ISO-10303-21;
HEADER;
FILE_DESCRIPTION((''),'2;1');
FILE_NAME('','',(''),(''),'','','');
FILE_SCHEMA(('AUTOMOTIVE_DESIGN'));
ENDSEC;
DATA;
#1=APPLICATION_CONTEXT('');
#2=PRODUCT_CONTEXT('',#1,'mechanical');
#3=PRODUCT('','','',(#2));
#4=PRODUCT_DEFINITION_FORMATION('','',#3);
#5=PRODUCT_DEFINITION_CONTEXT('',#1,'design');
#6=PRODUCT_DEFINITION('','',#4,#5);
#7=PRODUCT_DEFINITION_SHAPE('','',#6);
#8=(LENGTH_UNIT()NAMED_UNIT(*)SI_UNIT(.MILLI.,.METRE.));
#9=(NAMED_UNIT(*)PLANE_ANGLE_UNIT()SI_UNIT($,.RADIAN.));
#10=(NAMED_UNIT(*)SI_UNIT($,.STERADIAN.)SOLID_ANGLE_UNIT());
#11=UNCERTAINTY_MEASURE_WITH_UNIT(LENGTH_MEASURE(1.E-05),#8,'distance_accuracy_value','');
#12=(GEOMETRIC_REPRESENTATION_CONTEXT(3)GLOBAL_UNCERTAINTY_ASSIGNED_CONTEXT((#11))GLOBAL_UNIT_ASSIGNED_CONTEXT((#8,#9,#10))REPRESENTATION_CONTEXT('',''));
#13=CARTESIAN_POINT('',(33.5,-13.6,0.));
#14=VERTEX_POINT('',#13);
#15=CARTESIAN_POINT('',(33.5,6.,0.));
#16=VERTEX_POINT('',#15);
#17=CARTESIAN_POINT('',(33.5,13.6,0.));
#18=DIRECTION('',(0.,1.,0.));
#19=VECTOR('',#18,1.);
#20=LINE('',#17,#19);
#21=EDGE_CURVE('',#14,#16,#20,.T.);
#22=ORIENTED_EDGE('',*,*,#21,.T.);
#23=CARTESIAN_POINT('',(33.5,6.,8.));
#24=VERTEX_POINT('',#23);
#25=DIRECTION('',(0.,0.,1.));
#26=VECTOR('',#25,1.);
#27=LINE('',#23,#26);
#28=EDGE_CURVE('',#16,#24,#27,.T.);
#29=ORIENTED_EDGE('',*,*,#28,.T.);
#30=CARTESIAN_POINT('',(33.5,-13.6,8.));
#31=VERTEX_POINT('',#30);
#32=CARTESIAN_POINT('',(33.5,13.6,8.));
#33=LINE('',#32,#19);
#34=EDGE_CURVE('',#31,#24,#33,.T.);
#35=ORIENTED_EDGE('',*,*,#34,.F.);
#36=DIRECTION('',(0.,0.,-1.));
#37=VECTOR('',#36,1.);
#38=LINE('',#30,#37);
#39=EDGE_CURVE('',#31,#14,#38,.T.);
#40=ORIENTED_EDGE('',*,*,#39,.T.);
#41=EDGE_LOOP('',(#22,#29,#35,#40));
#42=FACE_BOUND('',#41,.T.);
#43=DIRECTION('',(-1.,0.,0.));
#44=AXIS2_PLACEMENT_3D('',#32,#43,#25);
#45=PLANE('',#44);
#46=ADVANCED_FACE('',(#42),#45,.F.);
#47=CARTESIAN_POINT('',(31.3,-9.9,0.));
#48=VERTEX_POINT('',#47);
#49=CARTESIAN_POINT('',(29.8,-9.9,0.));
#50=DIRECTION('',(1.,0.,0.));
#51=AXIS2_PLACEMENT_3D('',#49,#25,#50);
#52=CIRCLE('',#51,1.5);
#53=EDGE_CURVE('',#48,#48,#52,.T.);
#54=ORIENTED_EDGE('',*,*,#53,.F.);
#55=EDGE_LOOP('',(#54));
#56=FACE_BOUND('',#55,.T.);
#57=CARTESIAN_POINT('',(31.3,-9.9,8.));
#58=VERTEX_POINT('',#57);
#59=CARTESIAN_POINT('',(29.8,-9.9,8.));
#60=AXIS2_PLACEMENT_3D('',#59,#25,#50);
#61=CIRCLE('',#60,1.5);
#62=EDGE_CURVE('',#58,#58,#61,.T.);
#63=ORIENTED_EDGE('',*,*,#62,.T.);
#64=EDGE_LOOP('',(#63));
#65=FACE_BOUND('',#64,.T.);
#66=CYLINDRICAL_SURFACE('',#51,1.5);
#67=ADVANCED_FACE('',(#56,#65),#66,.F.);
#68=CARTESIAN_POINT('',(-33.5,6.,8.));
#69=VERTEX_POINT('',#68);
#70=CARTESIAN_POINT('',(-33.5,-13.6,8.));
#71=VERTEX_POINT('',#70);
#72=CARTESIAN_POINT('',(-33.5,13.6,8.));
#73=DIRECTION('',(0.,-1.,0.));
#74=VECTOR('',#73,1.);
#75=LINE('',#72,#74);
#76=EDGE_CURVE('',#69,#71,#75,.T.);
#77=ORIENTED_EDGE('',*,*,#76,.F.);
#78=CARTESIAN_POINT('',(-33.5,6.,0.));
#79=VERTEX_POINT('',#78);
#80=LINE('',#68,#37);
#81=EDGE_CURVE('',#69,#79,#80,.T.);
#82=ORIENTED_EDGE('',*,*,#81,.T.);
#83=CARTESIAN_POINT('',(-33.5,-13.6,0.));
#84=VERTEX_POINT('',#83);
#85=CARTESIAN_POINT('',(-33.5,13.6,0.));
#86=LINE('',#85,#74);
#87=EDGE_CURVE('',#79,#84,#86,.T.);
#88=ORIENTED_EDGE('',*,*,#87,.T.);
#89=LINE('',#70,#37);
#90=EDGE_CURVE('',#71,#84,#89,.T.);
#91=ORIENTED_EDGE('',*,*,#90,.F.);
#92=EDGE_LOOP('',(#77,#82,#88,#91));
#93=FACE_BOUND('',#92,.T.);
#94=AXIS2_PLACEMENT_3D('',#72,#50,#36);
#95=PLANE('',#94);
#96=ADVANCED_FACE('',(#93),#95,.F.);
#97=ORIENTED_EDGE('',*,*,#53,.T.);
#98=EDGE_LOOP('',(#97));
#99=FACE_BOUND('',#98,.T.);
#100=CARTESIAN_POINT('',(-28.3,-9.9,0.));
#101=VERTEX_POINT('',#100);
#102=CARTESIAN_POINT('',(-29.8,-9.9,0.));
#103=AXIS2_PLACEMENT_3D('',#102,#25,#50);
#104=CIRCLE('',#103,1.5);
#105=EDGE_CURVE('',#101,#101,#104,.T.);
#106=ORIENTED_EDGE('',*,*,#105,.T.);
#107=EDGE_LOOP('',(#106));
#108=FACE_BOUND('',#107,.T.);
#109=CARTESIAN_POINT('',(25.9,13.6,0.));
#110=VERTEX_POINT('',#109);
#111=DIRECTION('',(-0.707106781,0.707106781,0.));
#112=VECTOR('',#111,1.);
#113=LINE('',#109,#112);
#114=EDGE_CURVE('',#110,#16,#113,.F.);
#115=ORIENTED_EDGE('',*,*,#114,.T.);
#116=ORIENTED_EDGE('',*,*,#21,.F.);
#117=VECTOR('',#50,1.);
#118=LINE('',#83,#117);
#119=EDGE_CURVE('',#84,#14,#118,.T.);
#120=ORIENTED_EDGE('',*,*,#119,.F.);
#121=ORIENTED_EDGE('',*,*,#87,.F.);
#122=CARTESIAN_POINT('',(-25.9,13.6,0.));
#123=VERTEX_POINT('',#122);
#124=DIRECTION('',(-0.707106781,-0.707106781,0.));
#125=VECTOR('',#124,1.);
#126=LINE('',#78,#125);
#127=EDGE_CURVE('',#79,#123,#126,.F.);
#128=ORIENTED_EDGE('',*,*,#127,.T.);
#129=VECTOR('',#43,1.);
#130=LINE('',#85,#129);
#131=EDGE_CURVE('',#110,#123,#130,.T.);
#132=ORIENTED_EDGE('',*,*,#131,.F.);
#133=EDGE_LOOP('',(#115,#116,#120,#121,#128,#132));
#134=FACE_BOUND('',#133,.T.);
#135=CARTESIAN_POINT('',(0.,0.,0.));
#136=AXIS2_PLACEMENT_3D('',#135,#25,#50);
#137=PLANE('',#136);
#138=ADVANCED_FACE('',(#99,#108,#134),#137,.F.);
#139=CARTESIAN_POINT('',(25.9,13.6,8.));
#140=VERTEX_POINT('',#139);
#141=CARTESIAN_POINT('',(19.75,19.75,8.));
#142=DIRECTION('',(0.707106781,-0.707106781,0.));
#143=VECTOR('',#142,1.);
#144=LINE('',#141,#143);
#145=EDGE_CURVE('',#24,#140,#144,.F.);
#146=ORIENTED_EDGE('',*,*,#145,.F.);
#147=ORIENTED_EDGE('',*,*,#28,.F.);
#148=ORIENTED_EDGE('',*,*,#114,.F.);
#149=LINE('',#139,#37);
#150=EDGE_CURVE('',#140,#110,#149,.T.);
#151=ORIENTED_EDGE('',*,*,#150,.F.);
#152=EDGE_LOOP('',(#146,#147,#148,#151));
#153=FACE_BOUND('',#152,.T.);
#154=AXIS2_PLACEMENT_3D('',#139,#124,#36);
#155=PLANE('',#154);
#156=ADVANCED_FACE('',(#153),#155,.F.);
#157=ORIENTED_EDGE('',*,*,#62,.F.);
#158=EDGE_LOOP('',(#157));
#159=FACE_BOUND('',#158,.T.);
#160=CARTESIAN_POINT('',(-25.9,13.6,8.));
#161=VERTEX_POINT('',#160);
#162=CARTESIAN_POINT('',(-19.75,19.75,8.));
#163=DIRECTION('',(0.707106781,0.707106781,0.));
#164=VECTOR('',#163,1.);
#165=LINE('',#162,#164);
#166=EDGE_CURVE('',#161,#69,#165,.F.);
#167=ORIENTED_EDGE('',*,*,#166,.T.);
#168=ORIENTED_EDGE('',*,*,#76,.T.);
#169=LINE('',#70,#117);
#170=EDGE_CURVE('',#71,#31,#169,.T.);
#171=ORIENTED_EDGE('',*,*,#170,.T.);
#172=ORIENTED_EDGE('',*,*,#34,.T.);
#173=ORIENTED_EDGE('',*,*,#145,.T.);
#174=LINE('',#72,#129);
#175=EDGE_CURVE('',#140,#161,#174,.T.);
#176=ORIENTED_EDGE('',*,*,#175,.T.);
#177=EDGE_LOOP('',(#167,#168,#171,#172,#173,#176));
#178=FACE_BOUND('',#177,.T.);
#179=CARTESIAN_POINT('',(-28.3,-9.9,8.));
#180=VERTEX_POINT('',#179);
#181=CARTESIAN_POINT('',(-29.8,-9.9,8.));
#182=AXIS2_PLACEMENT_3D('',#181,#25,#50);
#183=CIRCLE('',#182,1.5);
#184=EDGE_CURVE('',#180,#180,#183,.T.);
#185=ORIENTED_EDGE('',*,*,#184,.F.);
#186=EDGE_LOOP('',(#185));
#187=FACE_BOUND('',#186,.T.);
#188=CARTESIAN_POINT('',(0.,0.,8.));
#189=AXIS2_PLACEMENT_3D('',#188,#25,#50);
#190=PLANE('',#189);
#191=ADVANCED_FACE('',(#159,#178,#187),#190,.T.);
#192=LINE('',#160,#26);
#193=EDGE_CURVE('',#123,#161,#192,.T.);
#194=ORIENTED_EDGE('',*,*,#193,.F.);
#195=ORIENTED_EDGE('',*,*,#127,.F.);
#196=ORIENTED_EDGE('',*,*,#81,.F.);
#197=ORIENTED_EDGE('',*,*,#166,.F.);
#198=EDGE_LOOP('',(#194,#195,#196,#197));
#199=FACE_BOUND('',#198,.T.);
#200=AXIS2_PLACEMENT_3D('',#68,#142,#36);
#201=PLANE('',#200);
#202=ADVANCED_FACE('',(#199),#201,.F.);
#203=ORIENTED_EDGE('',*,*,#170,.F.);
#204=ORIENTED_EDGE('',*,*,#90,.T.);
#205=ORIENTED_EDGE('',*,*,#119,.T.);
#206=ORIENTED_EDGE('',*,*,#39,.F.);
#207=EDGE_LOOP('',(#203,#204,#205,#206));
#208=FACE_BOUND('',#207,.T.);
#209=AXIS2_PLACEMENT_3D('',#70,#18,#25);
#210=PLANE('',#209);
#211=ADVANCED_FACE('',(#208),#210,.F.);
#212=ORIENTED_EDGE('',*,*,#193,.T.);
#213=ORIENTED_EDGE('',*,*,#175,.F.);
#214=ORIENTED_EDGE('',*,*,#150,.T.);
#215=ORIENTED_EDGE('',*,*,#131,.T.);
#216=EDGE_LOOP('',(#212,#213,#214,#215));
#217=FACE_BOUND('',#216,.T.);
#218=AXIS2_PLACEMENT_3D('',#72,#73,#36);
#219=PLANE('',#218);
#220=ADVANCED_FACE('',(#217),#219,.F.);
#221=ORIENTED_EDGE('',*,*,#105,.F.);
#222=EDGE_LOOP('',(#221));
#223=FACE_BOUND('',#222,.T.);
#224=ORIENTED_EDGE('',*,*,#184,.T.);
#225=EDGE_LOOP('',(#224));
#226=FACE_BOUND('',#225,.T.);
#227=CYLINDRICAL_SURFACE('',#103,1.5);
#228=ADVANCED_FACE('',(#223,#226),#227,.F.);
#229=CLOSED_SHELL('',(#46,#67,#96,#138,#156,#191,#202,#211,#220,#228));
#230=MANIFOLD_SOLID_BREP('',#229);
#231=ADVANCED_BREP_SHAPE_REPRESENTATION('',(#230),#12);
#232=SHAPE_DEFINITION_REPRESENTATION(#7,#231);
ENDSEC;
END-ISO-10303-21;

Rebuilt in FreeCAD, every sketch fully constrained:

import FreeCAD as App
import Part
import Sketcher
from FreeCAD import Vector
Q = App.Units.Quantity


def edges_at(feature, points):
    """Names of the edges that pass closest to the given points."""
    edges = feature.Shape.Edges
    near = lambda p: min(range(len(edges)), key=lambda i: edges[i].distToShape(Part.Vertex(*p))[0])
    return sorted({f"Edge{near(p) + 1}" for p in points})


def add_polygon(sketch, points):
    """Adds a closed chain of lines whose ends are joined by coincident constraints."""
    first, n = sketch.GeometryCount, len(points)
    for a, b in zip(points, points[1:] + points[:1]):
        sketch.addGeometry(Part.LineSegment(App.Vector(*a, 0), App.Vector(*b, 0)), False)
    for i in range(n):
        sketch.addConstraint(Sketcher.Constraint("Coincident", first + i, 2, first + (i + 1) % n, 1))

doc = App.newDocument("Part")
params = doc.addObject("Spreadsheet::Sheet", "Params")
for row, (alias, value) in enumerate([
    ("sketch1_width", "67 mm"),
    ("sketch1_height", "27.2 mm"),
    ("pad1_length", "8 mm"),
    ("sketch2_diameter", "3 mm"),
    ("pocket1_length", "8 mm"),
    ("chamfer_size", "7.6 mm"),
], start=1):
    params.set(f"A{row}", alias)
    params.set(f"B{row}", "=" + value)
    params.setAlias(f"B{row}", alias)

body = doc.addObject("PartDesign::Body", "Body")

sketch1 = doc.addObject("Sketcher::SketchObject", "Sketch")
body.addObject(sketch1)
sketch1.AttachmentSupport = (doc.XY_Plane, [""])
sketch1.MapMode = "FlatFace"
add_polygon(sketch1, [(-33.5, 13.6), (-33.5, -13.6), (33.5, -13.6), (33.5, 13.6)])
sketch1.addConstraint(Sketcher.Constraint("Vertical", 0))
sketch1.addConstraint(Sketcher.Constraint("Horizontal", 1))
sketch1.addConstraint(Sketcher.Constraint("Vertical", 2))
sketch1.addConstraint(Sketcher.Constraint("Horizontal", 3))
sketch1.addConstraint(Sketcher.Constraint("Symmetric", 0, 2, 2, 2, -1, 1))
sketch1.addConstraint(Sketcher.Constraint("DistanceX", 1, 1, 1, 2, Q("67 mm")))
sketch1.addConstraint(Sketcher.Constraint("DistanceY", 0, 2, 0, 1, Q("27.2 mm")))
sketch1.setExpression("Constraints[9]", "Params.sketch1_width")
sketch1.setExpression("Constraints[10]", "Params.sketch1_height")
pad1 = doc.addObject("PartDesign::Pad", "Pad")
body.addObject(pad1)
pad1.Profile = sketch1
pad1.setExpression("Length", "Params.pad1_length")

sketch2 = doc.addObject("Sketcher::SketchObject", "Sketch001")
body.addObject(sketch2)
sketch2.AttachmentSupport = (doc.XY_Plane, [""])
sketch2.MapMode = "FlatFace"
sketch2.AttachmentOffset = App.Placement(Vector(0, 0, 8), App.Rotation())
sketch2.addGeometry(Part.Circle(Vector(29.8, -9.9, 0), Vector(0, 0, 1), 1.5), False)
sketch2.addGeometry(Part.Circle(Vector(-29.8, -9.9, 0), Vector(0, 0, 1), 1.5), False)
sketch2.addConstraint(Sketcher.Constraint("Equal", 0, 1))
sketch2.addConstraint(Sketcher.Constraint("Symmetric", 0, 3, 1, 3, -2))
sketch2.addConstraint(Sketcher.Constraint("Diameter", 0, Q("3 mm")))
sketch2.addConstraint(Sketcher.Constraint("DistanceX", -1, 1, 0, 3, Q("29.8 mm")))
sketch2.addConstraint(Sketcher.Constraint("DistanceY", 0, 3, -1, 1, Q("9.9 mm")))
sketch2.setExpression("Constraints[2]", "Params.sketch2_diameter")
pocket1 = doc.addObject("PartDesign::Pocket", "Pocket")
body.addObject(pocket1)
pocket1.Profile = sketch2
pocket1.setExpression("Length", "Params.pocket1_length")
doc.recompute()

chamfer = doc.addObject("PartDesign::Chamfer", "Chamfer")
body.addObject(chamfer)
chamfer.Base = (pocket1, edges_at(pocket1, [(-33.5, 13.6, 4), (33.5, 13.6, 4)]))
chamfer.setExpression("Size", "Params.chamfer_size")

doc.recompute()
